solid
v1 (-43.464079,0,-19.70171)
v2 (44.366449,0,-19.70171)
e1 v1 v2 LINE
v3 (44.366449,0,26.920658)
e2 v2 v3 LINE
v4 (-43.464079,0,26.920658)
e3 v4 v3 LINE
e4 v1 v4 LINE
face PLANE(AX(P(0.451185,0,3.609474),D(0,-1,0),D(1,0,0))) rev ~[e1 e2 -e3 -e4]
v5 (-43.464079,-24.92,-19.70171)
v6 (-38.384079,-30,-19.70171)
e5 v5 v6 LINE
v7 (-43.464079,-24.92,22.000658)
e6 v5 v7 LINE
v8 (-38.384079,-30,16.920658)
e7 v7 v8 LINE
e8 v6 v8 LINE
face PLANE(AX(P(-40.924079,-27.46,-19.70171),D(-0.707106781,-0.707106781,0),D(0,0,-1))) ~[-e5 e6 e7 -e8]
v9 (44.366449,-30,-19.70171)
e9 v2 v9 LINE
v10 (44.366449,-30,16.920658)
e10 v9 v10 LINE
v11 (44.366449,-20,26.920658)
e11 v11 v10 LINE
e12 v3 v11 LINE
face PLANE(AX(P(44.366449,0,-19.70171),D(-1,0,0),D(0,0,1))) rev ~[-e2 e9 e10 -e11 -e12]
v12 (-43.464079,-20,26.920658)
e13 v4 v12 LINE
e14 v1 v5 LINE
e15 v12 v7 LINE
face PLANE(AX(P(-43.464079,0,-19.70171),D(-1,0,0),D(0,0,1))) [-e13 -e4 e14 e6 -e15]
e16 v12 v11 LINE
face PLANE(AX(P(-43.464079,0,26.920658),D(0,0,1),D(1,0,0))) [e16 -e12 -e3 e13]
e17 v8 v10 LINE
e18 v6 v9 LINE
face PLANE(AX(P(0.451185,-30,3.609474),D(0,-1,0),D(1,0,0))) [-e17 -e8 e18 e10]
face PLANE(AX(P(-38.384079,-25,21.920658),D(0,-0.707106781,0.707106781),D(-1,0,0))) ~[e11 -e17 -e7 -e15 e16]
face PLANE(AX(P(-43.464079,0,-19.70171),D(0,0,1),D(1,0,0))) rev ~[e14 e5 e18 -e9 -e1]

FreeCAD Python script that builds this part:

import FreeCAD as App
import Part
import Sketcher

V = App.Vector


def edges_at(feature, points):
    """Names of the edges that pass closest to the given points."""
    edges = feature.Shape.Edges
    near = lambda p: min(range(len(edges)), key=lambda i: edges[i].distToShape(Part.Vertex(*p))[0])
    return sorted({f"Edge{near(p) + 1}" for p in points})

doc = App.newDocument("Part")
body = doc.addObject("PartDesign::Body", "Body")

# Sketch on XZ plane
sketch1 = body.newObject("Sketcher::SketchObject", "Sketch")
sketch1.AttachmentSupport = (doc.getObject("XZ_Plane"), [""])
sketch1.MapMode = "FlatFace"
sketch1.addGeometry([
    Part.LineSegment(V(-43, 27, 0), V(-43, -20, 0)),
    Part.LineSegment(V(-43, -20, 0), V(44, -20, 0)),
    Part.LineSegment(V(44, -20, 0), V(44, 27, 0)),
    Part.LineSegment(V(44, 27, 0), V(-43, 27, 0)),
], False)
sketch1.addConstraint([
    Sketcher.Constraint("Coincident", 0, 2, 1, 1),
    Sketcher.Constraint("Coincident", 1, 2, 2, 1),
    Sketcher.Constraint("Coincident", 2, 2, 3, 1),
    Sketcher.Constraint("Coincident", 3, 2, 0, 1),
    Sketcher.Constraint("Vertical", 0),
    Sketcher.Constraint("Horizontal", 1),
    Sketcher.Constraint("Vertical", 2),
    Sketcher.Constraint("Horizontal", 3),
    Sketcher.Constraint("DistanceX", 1, 1, 1, 2, 87.830528),
    Sketcher.Constraint("DistanceY", 0, 2, 0, 1, 46.622368),
    Sketcher.Constraint("DistanceX", 0, 2, -1, 1, 43.464079),
    Sketcher.Constraint("DistanceY", 0, 2, -1, 1, 19.70171),
])
pad1 = body.newObject("PartDesign::Pad", "Pad")
pad1.Profile = sketch1
pad1.Length = 30
doc.recompute()

chamfer = body.newObject("PartDesign::Chamfer", "Chamfer")
chamfer.Base = (pad1, edges_at(pad1, [(-43.464, -30, 3.609)]))
chamfer.Size = 5.08
doc.recompute()

chamfer2 = body.newObject("PartDesign::Chamfer", "Chamfer001")
chamfer2.Base = (chamfer, edges_at(chamfer, [(2.991, -30, 26.921)]))
chamfer2.Size = 10

doc.recompute()
